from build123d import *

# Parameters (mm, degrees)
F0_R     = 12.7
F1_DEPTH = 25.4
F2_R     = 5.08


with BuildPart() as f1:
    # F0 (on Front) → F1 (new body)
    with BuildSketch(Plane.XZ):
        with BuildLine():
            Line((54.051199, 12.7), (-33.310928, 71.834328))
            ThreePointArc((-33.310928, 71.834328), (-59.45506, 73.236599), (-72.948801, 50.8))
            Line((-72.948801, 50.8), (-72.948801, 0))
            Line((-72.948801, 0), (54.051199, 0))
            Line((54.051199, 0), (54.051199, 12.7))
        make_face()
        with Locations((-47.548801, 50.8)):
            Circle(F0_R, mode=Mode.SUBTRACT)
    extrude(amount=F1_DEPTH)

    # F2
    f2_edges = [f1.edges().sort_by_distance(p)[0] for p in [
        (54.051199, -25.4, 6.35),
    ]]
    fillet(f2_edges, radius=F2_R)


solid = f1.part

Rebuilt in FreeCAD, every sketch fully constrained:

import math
import FreeCAD as App
import Part
import Sketcher
Q = App.Units.Quantity


def edges_at(feature, points):
    """Names of the edges that pass closest to the given points."""
    edges = feature.Shape.Edges
    near = lambda p: min(range(len(edges)), key=lambda i: edges[i].distToShape(Part.Vertex(*p))[0])
    return sorted({f"Edge{near(p) + 1}" for p in points})

doc = App.newDocument("Part")
body = doc.addObject("PartDesign::Body", "Body")

# Sketch on XZ plane
sketch1 = body.newObject("Sketcher::SketchObject", "Sketch")
sketch1.AttachmentSupport = (doc.getObject("XZ_Plane"), [""])
sketch1.MapMode = "FlatFace"
sketch1.addGeometry(Part.LineSegment(App.Vector(54.051199, 12.7, 0), App.Vector(-33.310928, 71.834328, 0)), False)
sketch1.addGeometry(Part.ArcOfCircle(Part.Circle(App.Vector(-47.548801, 50.799999, 0), App.Vector(0, 0, 1), 25.4), math.radians(55.906422), math.radians(179.999999)), False)
sketch1.addGeometry(Part.LineSegment(App.Vector(-72.948801, 50.8, 0), App.Vector(-72.948801, 0, 0)), False)
sketch1.addGeometry(Part.LineSegment(App.Vector(-72.948801, 0, 0), App.Vector(54.051199, 0, 0)), False)
sketch1.addGeometry(Part.LineSegment(App.Vector(54.051199, 0, 0), App.Vector(54.051199, 12.7, 0)), False)
sketch1.addGeometry(Part.Circle(App.Vector(-47.548801, 50.8, 0), App.Vector(0, 0, 1), 12.7), False)
sketch1.addConstraint(Sketcher.Constraint("Tangent", 0, 2, 1, 1))
sketch1.addConstraint(Sketcher.Constraint("Tangent", 1, 2, 2, 1))
sketch1.addConstraint(Sketcher.Constraint("Coincident", 2, 2, 3, 1))
sketch1.addConstraint(Sketcher.Constraint("Coincident", 3, 2, 4, 1))
sketch1.addConstraint(Sketcher.Constraint("Coincident", 4, 2, 0, 1))
sketch1.addConstraint(Sketcher.Constraint("Vertical", 2))
sketch1.addConstraint(Sketcher.Constraint("Horizontal", 3))
sketch1.addConstraint(Sketcher.Constraint("Vertical", 4))
sketch1.addConstraint(Sketcher.Constraint("Coincident", 5, 3, 1, 3))
sketch1.addConstraint(Sketcher.Constraint("PointOnObject", 2, 2, -1))
sketch1.addConstraint(Sketcher.Constraint("Diameter", 5, Q("1 in")))
sketch1.addConstraint(Sketcher.Constraint("Radius", 1, Q("1 in")))
sketch1.addConstraint(Sketcher.Constraint("DistanceX", 3, 1, 3, 2, Q("5 in")))
sketch1.addConstraint(Sketcher.Constraint("DistanceY", 2, 2, 2, 1, Q("2 in")))
sketch1.addConstraint(Sketcher.Constraint("DistanceY", 4, 1, 4, 2, Q("0.5 in")))
sketch1.addConstraint(Sketcher.Constraint("DistanceX", 1, 3, -1, 1, Q("1.872 in")))
pad1 = body.newObject("PartDesign::Pad", "Pad")
pad1.Profile = sketch1
pad1.Length = Q("1 in")
doc.recompute()

fillet = body.newObject("PartDesign::Fillet", "Fillet")
fillet.Base = (pad1, edges_at(pad1, [(54.051, -25.4, 6.35)]))
fillet.Radius = Q("0.2 in")

doc.recompute()
